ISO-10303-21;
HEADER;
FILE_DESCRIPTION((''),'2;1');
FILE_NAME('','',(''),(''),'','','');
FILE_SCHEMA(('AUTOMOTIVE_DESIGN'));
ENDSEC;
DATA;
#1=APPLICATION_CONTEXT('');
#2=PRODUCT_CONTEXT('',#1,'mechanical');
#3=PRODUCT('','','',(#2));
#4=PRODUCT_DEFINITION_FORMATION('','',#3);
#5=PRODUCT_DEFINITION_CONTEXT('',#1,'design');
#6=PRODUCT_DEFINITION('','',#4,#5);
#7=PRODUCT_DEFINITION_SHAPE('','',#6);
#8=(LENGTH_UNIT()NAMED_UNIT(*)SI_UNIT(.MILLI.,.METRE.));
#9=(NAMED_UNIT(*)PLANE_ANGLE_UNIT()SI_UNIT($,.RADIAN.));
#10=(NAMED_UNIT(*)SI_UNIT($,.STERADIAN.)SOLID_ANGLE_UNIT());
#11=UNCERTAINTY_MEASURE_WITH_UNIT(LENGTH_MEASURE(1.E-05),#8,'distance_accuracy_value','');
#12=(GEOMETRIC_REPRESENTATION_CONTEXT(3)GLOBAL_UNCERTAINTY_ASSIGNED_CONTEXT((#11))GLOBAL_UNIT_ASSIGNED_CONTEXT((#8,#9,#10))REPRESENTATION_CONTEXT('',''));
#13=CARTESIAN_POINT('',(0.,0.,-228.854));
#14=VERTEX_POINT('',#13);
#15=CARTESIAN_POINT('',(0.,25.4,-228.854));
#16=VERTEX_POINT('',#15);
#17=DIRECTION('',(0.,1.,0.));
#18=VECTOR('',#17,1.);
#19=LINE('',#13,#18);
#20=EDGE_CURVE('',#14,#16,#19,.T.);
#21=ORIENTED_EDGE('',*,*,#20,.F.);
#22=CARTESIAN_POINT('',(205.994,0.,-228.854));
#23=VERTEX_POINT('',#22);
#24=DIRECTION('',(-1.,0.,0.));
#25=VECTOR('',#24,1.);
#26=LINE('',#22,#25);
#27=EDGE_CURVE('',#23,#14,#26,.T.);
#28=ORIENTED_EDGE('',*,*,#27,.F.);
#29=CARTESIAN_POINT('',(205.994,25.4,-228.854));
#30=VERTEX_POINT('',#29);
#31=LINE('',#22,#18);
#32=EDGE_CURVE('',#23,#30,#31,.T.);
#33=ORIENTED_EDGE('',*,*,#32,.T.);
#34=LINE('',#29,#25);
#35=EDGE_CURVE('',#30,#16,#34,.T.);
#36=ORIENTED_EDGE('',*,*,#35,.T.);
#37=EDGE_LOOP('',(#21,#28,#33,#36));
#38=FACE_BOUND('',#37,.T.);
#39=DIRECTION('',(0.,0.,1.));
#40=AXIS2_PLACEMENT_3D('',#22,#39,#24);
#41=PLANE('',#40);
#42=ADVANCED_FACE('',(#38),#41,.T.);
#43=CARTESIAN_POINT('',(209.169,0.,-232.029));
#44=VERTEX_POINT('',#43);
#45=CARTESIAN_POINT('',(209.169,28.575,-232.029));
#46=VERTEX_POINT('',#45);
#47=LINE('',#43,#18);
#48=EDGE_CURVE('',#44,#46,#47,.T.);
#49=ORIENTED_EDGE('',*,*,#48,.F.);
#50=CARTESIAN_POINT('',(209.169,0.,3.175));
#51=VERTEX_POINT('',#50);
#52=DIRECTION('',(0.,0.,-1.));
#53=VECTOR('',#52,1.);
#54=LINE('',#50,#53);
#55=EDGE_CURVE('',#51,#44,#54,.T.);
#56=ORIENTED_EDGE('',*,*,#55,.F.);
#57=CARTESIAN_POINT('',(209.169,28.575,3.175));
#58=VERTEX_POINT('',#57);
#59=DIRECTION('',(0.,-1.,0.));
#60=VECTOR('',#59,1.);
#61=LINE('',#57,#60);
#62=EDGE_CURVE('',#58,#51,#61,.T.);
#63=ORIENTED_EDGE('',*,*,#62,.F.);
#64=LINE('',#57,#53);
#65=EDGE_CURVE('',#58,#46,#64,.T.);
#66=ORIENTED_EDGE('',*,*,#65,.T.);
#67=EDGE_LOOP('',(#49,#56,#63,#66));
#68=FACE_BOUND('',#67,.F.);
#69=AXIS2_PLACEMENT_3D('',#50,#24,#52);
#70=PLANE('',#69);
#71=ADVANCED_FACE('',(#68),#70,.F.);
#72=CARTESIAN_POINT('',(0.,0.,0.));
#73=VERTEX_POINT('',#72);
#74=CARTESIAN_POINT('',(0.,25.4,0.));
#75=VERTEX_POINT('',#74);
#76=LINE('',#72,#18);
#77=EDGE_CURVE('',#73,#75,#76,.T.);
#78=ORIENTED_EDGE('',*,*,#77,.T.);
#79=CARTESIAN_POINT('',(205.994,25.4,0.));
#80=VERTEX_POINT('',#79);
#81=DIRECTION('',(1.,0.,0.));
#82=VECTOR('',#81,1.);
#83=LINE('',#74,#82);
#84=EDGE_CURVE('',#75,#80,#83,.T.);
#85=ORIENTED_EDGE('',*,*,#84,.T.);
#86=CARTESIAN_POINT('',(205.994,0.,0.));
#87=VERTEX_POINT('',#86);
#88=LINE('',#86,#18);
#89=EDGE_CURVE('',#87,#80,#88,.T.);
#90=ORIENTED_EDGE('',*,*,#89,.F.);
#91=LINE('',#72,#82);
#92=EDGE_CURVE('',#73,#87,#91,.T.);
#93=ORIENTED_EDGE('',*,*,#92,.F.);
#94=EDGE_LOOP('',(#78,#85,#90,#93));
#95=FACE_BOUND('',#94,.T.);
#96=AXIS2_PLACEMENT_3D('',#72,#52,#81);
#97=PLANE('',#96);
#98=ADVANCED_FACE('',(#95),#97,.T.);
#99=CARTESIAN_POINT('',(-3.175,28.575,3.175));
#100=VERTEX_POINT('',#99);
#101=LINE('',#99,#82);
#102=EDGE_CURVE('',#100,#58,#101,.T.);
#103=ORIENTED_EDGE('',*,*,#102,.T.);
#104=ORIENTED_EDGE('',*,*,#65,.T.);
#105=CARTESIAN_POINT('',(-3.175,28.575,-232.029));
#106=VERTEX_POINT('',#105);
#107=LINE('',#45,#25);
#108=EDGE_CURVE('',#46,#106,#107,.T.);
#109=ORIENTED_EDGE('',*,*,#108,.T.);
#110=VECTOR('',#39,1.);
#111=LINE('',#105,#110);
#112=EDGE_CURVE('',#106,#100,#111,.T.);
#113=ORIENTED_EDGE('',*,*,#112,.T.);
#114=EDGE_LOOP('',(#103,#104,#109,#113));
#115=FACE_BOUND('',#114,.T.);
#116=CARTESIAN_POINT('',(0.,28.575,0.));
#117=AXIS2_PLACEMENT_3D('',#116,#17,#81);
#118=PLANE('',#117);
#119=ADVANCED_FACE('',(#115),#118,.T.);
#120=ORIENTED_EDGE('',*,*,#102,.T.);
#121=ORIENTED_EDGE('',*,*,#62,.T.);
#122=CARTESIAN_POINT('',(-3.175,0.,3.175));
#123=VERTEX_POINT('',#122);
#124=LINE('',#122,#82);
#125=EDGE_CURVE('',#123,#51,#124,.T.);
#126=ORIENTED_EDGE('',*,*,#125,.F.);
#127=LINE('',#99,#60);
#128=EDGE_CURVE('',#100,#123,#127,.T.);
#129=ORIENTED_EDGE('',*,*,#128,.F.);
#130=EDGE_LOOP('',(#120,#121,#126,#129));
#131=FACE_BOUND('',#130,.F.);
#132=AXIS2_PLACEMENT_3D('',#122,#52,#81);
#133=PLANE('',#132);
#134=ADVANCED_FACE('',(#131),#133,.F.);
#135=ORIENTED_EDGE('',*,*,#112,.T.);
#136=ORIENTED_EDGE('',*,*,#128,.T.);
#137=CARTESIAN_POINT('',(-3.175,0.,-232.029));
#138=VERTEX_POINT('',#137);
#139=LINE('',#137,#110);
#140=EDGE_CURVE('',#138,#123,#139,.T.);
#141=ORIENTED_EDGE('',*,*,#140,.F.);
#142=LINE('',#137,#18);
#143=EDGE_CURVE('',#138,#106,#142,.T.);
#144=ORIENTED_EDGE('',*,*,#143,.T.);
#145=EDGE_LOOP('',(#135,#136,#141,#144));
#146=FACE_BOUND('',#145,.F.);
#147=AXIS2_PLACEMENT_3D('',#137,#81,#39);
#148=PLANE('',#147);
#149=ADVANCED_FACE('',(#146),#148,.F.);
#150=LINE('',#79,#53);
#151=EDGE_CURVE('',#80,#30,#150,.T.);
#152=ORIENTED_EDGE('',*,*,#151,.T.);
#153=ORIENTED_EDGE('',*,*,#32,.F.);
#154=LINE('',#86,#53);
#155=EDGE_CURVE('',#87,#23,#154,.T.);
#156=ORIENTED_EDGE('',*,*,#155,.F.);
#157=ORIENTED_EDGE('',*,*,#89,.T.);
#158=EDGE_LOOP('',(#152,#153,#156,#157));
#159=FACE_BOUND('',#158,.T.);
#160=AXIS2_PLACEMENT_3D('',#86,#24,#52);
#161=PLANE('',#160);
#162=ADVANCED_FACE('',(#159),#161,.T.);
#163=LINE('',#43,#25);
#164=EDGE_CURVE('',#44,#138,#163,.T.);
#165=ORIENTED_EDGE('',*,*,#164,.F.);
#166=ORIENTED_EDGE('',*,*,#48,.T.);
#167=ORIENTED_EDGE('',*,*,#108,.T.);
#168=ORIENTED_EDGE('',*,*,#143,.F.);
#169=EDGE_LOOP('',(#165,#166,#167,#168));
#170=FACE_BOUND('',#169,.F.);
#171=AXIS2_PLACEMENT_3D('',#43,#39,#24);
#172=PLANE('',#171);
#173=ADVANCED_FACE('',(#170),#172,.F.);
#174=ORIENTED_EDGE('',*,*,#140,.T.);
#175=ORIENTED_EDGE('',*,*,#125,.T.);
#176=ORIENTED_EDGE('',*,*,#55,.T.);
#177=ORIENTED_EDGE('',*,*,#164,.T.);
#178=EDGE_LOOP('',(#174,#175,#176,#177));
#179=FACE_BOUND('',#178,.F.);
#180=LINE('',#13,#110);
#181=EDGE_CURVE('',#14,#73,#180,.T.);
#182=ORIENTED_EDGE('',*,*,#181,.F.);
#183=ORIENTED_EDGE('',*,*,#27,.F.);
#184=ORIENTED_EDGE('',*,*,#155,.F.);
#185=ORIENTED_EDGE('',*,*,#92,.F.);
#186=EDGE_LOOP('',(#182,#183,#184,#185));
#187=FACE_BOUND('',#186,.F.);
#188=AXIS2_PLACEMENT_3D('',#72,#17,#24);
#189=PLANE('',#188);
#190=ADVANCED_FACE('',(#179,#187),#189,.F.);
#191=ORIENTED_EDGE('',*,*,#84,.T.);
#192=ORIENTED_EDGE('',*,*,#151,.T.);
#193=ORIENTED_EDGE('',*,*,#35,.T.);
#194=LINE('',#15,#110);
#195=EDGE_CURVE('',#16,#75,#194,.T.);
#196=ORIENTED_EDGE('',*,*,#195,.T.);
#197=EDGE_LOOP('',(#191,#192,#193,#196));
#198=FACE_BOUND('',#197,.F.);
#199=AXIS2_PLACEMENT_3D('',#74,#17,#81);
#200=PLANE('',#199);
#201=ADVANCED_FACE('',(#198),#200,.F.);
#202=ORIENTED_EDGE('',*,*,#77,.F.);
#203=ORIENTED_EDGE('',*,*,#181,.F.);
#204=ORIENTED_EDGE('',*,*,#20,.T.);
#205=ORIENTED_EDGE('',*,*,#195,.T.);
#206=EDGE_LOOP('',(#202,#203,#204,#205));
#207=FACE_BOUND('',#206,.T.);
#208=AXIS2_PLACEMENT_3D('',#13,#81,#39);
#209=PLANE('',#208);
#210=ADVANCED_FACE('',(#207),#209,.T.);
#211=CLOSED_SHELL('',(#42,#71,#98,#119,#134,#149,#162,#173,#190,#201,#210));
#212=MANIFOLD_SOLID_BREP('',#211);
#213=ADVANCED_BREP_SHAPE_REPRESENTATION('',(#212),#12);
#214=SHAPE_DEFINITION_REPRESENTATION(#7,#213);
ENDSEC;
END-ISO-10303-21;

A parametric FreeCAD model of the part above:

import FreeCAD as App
import Part
import Sketcher
from FreeCAD import Vector
Q = App.Units.Quantity


def add_polygon(sketch, points):
    """Adds a closed chain of lines whose ends are joined by coincident constraints."""
    first, n = sketch.GeometryCount, len(points)
    for a, b in zip(points, points[1:] + points[:1]):
        sketch.addGeometry(Part.LineSegment(App.Vector(*a, 0), App.Vector(*b, 0)), False)
    for i in range(n):
        sketch.addConstraint(Sketcher.Constraint("Coincident", first + i, 2, first + (i + 1) % n, 1))

doc = App.newDocument("Part")
body = doc.addObject("PartDesign::Body", "Body")

# Sketch on XZ plane
sketch1 = body.newObject("Sketcher::SketchObject", "Sketch")
sketch1.AttachmentSupport = (doc.getObject("XZ_Plane"), [""])
sketch1.MapMode = "FlatFace"
add_polygon(sketch1, [(209.169, 3.175), (209.169, -232.029), (-3.175, -232.029), (-3.175, 3.175)])  # lines 0-3
add_polygon(sketch1, [(205.994, 0), (0, 0), (0, -228.854), (205.994, -228.854)])  # lines 4-7
sketch1.addConstraint([
    Sketcher.Constraint("Vertical", 0),
    Sketcher.Constraint("Horizontal", 1),
    Sketcher.Constraint("Vertical", 2),
    Sketcher.Constraint("Horizontal", 3),
    Sketcher.Constraint("Horizontal", 4),
    Sketcher.Constraint("Vertical", 5),
    Sketcher.Constraint("Horizontal", 6),
    Sketcher.Constraint("Vertical", 7),
    Sketcher.Constraint("Coincident", 4, 2, -1, 1),
    Sketcher.Constraint("DistanceX", 4, 2, 4, 1, Q("8.11 in")),
    Sketcher.Constraint("DistanceY", 5, 2, 5, 1, Q("9.01 in")),
    Sketcher.Constraint("DistanceX", 1, 2, -1, 1, Q("0.125 in")),
    Sketcher.Constraint("DistanceY", -1, 1, 2, 2, Q("0.125 in")),
    Sketcher.Constraint("DistanceY", 1, 2, 5, 2, Q("0.125 in")),
    Sketcher.Constraint("DistanceX", 6, 2, 0, 2, Q("0.125 in")),
])
pad1 = body.newObject("PartDesign::Pad", "Pad")
pad1.Profile = sketch1
pad1.Length = Q("1 in")
pad1.Reversed = True

# Sketch on XZ plane
sketch2 = body.newObject("Sketcher::SketchObject", "Sketch001")
sketch2.AttachmentSupport = (doc.getObject("XZ_Plane"), [""])
sketch2.MapMode = "FlatFace"
sketch2.AttachmentOffset = App.Placement(Vector(0, 0, -1 * 25.4), App.Rotation())
add_polygon(sketch2, [(209.169, -232.029), (-3.175, -232.029), (-3.175, 3.175), (209.169, 3.175)])  # lines 0-3
sketch2.addConstraint([
    Sketcher.Constraint("Horizontal", 0),
    Sketcher.Constraint("Vertical", 1),
    Sketcher.Constraint("Horizontal", 2),
    Sketcher.Constraint("Vertical", 3),
    Sketcher.Constraint("DistanceX", 0, 2, 0, 1, Q("8.36 in")),
    Sketcher.Constraint("DistanceY", 1, 1, 1, 2, Q("9.26 in")),
    Sketcher.Constraint("DistanceX", 0, 2, -1, 1, Q("0.125 in")),
    Sketcher.Constraint("DistanceY", 0, 2, -1, 1, Q("9.135 in")),
])
pad2 = body.newObject("PartDesign::Pad", "Pad001")
pad2.Profile = sketch2
pad2.Length = Q("0.125 in")
pad2.Reversed = True

doc.recompute()
